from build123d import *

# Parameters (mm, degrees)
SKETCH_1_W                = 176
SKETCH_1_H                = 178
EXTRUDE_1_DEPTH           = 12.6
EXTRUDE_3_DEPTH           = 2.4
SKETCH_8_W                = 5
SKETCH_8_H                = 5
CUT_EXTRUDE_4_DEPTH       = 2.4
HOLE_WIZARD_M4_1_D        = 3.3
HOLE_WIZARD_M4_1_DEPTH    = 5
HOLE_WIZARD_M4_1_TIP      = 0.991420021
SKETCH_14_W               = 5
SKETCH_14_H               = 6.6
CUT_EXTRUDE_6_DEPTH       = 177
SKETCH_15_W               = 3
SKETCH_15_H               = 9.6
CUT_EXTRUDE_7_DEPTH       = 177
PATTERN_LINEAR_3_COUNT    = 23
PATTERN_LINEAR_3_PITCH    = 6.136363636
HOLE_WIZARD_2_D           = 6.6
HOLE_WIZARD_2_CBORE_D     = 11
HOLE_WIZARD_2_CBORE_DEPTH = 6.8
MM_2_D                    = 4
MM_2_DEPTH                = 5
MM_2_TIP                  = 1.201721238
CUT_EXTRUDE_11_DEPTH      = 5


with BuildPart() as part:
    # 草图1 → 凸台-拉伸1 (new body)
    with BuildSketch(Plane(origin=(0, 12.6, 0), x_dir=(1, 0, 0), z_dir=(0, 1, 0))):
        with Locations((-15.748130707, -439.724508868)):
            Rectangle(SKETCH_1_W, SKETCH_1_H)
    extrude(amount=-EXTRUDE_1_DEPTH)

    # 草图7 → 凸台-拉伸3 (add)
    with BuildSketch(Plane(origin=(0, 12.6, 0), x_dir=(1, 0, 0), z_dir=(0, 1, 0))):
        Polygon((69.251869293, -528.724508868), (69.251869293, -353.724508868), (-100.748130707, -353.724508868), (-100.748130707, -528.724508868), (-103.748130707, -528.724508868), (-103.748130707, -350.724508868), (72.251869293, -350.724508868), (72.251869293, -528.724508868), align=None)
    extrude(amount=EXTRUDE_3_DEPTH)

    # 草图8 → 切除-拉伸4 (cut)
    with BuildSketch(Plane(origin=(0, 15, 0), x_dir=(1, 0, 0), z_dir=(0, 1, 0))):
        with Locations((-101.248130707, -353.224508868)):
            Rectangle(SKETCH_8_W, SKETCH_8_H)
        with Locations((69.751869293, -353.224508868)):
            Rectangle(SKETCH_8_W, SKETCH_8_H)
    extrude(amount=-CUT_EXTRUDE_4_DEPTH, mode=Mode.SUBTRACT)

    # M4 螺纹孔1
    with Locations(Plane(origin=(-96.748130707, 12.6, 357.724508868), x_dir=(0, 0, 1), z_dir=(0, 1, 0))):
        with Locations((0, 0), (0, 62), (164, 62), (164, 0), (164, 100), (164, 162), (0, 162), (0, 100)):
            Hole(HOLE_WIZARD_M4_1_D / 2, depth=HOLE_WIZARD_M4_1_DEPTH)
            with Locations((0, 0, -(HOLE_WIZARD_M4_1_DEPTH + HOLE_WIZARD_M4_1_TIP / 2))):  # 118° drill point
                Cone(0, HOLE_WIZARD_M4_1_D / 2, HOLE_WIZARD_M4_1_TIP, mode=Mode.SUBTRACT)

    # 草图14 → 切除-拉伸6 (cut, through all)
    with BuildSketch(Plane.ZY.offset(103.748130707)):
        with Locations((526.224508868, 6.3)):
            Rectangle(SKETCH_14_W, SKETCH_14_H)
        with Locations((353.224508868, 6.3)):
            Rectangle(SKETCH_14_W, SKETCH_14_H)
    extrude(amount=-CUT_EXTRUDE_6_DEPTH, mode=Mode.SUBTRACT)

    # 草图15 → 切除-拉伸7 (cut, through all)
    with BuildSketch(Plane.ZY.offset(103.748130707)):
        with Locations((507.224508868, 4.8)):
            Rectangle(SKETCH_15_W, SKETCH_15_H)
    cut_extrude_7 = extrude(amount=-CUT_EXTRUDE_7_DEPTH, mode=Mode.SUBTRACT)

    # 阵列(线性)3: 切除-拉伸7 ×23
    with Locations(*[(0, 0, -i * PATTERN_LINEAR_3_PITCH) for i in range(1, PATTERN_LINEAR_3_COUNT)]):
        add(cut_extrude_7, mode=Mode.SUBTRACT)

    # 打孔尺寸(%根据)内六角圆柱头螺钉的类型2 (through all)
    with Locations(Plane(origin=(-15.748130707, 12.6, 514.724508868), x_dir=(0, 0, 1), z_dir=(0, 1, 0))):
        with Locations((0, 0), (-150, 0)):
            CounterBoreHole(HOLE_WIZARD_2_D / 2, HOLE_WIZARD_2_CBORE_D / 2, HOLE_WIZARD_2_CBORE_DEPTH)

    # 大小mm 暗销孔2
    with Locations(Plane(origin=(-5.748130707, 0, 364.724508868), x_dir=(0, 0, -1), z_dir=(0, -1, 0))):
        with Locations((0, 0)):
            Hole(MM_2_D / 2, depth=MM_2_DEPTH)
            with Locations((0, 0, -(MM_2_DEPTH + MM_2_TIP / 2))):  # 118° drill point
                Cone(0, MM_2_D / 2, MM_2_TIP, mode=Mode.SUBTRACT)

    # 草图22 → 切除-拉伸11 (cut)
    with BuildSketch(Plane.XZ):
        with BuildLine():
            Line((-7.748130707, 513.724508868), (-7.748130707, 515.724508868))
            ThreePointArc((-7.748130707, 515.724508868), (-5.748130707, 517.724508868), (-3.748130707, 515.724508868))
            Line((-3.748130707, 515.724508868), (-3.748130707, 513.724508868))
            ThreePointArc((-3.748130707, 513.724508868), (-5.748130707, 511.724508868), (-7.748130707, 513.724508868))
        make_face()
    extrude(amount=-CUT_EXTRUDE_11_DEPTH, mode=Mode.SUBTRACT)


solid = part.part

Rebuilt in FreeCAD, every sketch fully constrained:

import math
import FreeCAD as App
import Part
import Sketcher

V = App.Vector

doc = App.newDocument("Part")
body = doc.addObject("PartDesign::Body", "Body")

# Sketch on XZ plane
sketch1 = doc.addObject("Sketcher::SketchObject", "Sketch")
body.addObject(sketch1)
sketch1.AttachmentSupport = (doc.XZ_Plane, [""])
sketch1.MapMode = "FlatFace"
sketch1.AttachmentOffset = App.Placement(V(0, 0, -12.6), App.Rotation())
sketch1.addGeometry(Part.LineSegment(V(-103.748131, 350.724509, 0), V(-103.748131, 528.724509, 0)), False)
sketch1.addGeometry(Part.LineSegment(V(-103.748131, 528.724509, 0), V(72.251869, 528.724509, 0)), False)
sketch1.addGeometry(Part.LineSegment(V(72.251869, 528.724509, 0), V(72.251869, 350.724509, 0)), False)
sketch1.addGeometry(Part.LineSegment(V(72.251869, 350.724509, 0), V(-103.748131, 350.724509, 0)), False)
sketch1.addConstraint(Sketcher.Constraint("Coincident", 0, 2, 1, 1))
sketch1.addConstraint(Sketcher.Constraint("Coincident", 1, 2, 2, 1))
sketch1.addConstraint(Sketcher.Constraint("Coincident", 2, 2, 3, 1))
sketch1.addConstraint(Sketcher.Constraint("Coincident", 3, 2, 0, 1))
sketch1.addConstraint(Sketcher.Constraint("Vertical", 0))
sketch1.addConstraint(Sketcher.Constraint("Horizontal", 1))
sketch1.addConstraint(Sketcher.Constraint("Vertical", 2))
sketch1.addConstraint(Sketcher.Constraint("Horizontal", 3))
sketch1.addConstraint(Sketcher.Constraint("DistanceX", 1, 1, 1, 2, 176.0))
sketch1.addConstraint(Sketcher.Constraint("DistanceY", 0, 1, 0, 2, 178.0))
sketch1.addConstraint(Sketcher.Constraint("DistanceX", 0, 2, -1, 1, 103.748131))
sketch1.addConstraint(Sketcher.Constraint("DistanceY", -1, 1, 0, 2, 528.724509))
pad1 = doc.addObject("PartDesign::Pad", "Pad")
body.addObject(pad1)
pad1.Profile = sketch1
pad1.Length = 12.6

# Sketch on XZ plane
sketch2 = doc.addObject("Sketcher::SketchObject", "Sketch001")
body.addObject(sketch2)
sketch2.AttachmentSupport = (doc.XZ_Plane, [""])
sketch2.MapMode = "FlatFace"
sketch2.AttachmentOffset = App.Placement(V(0, 0, -12.6), App.Rotation())
sketch2.addGeometry(Part.LineSegment(V(69.251869, 353.724509, 0), V(69.251869, 528.724509, 0)), False)
sketch2.addGeometry(Part.LineSegment(V(69.251869, 528.724509, 0), V(72.251869, 528.724509, 0)), False)
sketch2.addGeometry(Part.LineSegment(V(72.251869, 528.724509, 0), V(72.251869, 350.724509, 0)), False)
sketch2.addGeometry(Part.LineSegment(V(72.251869, 350.724509, 0), V(-103.748131, 350.724509, 0)), False)
sketch2.addGeometry(Part.LineSegment(V(-103.748131, 350.724509, 0), V(-103.748131, 528.724509, 0)), False)
sketch2.addGeometry(Part.LineSegment(V(-103.748131, 528.724509, 0), V(-100.748131, 528.724509, 0)), False)
sketch2.addGeometry(Part.LineSegment(V(-100.748131, 528.724509, 0), V(-100.748131, 353.724509, 0)), False)
sketch2.addGeometry(Part.LineSegment(V(-100.748131, 353.724509, 0), V(69.251869, 353.724509, 0)), False)
sketch2.addConstraint(Sketcher.Constraint("Coincident", 0, 2, 1, 1))
sketch2.addConstraint(Sketcher.Constraint("Coincident", 1, 2, 2, 1))
sketch2.addConstraint(Sketcher.Constraint("Coincident", 2, 2, 3, 1))
sketch2.addConstraint(Sketcher.Constraint("Coincident", 3, 2, 4, 1))
sketch2.addConstraint(Sketcher.Constraint("Coincident", 4, 2, 5, 1))
sketch2.addConstraint(Sketcher.Constraint("Coincident", 5, 2, 6, 1))
sketch2.addConstraint(Sketcher.Constraint("Coincident", 6, 2, 7, 1))
sketch2.addConstraint(Sketcher.Constraint("Coincident", 7, 2, 0, 1))
sketch2.addConstraint(Sketcher.Constraint("Vertical", 0))
sketch2.addConstraint(Sketcher.Constraint("Horizontal", 1))
sketch2.addConstraint(Sketcher.Constraint("Vertical", 2))
sketch2.addConstraint(Sketcher.Constraint("Horizontal", 3))
sketch2.addConstraint(Sketcher.Constraint("Vertical", 4))
sketch2.addConstraint(Sketcher.Constraint("Horizontal", 5))
sketch2.addConstraint(Sketcher.Constraint("Vertical", 6))
sketch2.addConstraint(Sketcher.Constraint("Horizontal", 7))
sketch2.addConstraint(Sketcher.Constraint("Horizontal", 1, 2, 4, 2))
sketch2.addConstraint(Sketcher.Constraint("Equal", 1, 5))
sketch2.addConstraint(Sketcher.Constraint("DistanceX", 1, 1, 1, 2, 3.0))
sketch2.addConstraint(Sketcher.Constraint("DistanceX", 3, 2, 3, 1, 176.0))
sketch2.addConstraint(Sketcher.Constraint("DistanceY", 0, 1, 0, 2, 175.0))
sketch2.addConstraint(Sketcher.Constraint("DistanceY", 2, 2, 2, 1, 178.0))
sketch2.addConstraint(Sketcher.Constraint("DistanceX", -1, 1, 0, 2, 69.251869))
sketch2.addConstraint(Sketcher.Constraint("DistanceY", -1, 1, 0, 2, 528.724509))
pad2 = doc.addObject("PartDesign::Pad", "Pad001")
body.addObject(pad2)
pad2.Profile = sketch2
pad2.Length = 2.4
pad2.Reversed = True

# Sketch on XZ plane
sketch3 = doc.addObject("Sketcher::SketchObject", "Sketch002")
body.addObject(sketch3)
sketch3.AttachmentSupport = (doc.XZ_Plane, [""])
sketch3.MapMode = "FlatFace"
sketch3.AttachmentOffset = App.Placement(V(0, 0, -15), App.Rotation())
sketch3.addGeometry(Part.LineSegment(V(-103.748131, 350.724509, 0), V(-103.748131, 355.724509, 0)), False)
sketch3.addGeometry(Part.LineSegment(V(-103.748131, 355.724509, 0), V(-98.748131, 355.724509, 0)), False)
sketch3.addGeometry(Part.LineSegment(V(-98.748131, 355.724509, 0), V(-98.748131, 350.724509, 0)), False)
sketch3.addGeometry(Part.LineSegment(V(-98.748131, 350.724509, 0), V(-103.748131, 350.724509, 0)), False)
sketch3.addGeometry(Part.LineSegment(V(67.251869, 350.724509, 0), V(67.251869, 355.724509, 0)), False)
sketch3.addGeometry(Part.LineSegment(V(67.251869, 355.724509, 0), V(72.251869, 355.724509, 0)), False)
sketch3.addGeometry(Part.LineSegment(V(72.251869, 355.724509, 0), V(72.251869, 350.724509, 0)), False)
sketch3.addGeometry(Part.LineSegment(V(72.251869, 350.724509, 0), V(67.251869, 350.724509, 0)), False)
sketch3.addConstraint(Sketcher.Constraint("Coincident", 0, 2, 1, 1))
sketch3.addConstraint(Sketcher.Constraint("Coincident", 1, 2, 2, 1))
sketch3.addConstraint(Sketcher.Constraint("Coincident", 2, 2, 3, 1))
sketch3.addConstraint(Sketcher.Constraint("Coincident", 3, 2, 0, 1))
sketch3.addConstraint(Sketcher.Constraint("Coincident", 4, 2, 5, 1))
sketch3.addConstraint(Sketcher.Constraint("Coincident", 5, 2, 6, 1))
sketch3.addConstraint(Sketcher.Constraint("Coincident", 6, 2, 7, 1))
sketch3.addConstraint(Sketcher.Constraint("Coincident", 7, 2, 4, 1))
sketch3.addConstraint(Sketcher.Constraint("Vertical", 0))
sketch3.addConstraint(Sketcher.Constraint("Horizontal", 1))
sketch3.addConstraint(Sketcher.Constraint("Vertical", 2))
sketch3.addConstraint(Sketcher.Constraint("Horizontal", 3))
sketch3.addConstraint(Sketcher.Constraint("Vertical", 4))
sketch3.addConstraint(Sketcher.Constraint("Horizontal", 5))
sketch3.addConstraint(Sketcher.Constraint("Vertical", 6))
sketch3.addConstraint(Sketcher.Constraint("Horizontal", 7))
sketch3.addConstraint(Sketcher.Constraint("Horizontal", 1, 2, 4, 2))
sketch3.addConstraint(Sketcher.Constraint("Horizontal", 3, 2, 6, 2))
sketch3.addConstraint(Sketcher.Constraint("Equal", 3, 5))
sketch3.addConstraint(Sketcher.Constraint("Equal", 7, 0))
sketch3.addConstraint(Sketcher.Constraint("DistanceX", 1, 1, 1, 2, 5.0))
sketch3.addConstraint(Sketcher.Constraint("DistanceX", 1, 2, 4, 2, 166.0))
sketch3.addConstraint(Sketcher.Constraint("DistanceX", 0, 2, -1, 1, 103.748131))
sketch3.addConstraint(Sketcher.Constraint("DistanceY", -1, 1, 0, 2, 355.724509))
pocket1 = doc.addObject("PartDesign::Pocket", "Pocket")
body.addObject(pocket1)
pocket1.Profile = sketch3
pocket1.Length = 2.4
pocket1.Reversed = True

# Sketch on XZ plane
sketch4 = doc.addObject("Sketcher::SketchObject", "Sketch003")
body.addObject(sketch4)
sketch4.AttachmentSupport = (doc.XZ_Plane, [""])
sketch4.MapMode = "FlatFace"
sketch4.AttachmentOffset = App.Placement(V(0, 0, -12.6), App.Rotation())
sketch4.addGeometry(Part.Circle(V(-96.748131, 357.724509, 0), V(0, 0, 1), 1.65), False)
sketch4.addGeometry(Part.Circle(V(-34.748131, 357.724509, 0), V(0, 0, 1), 1.65), False)
sketch4.addGeometry(Part.Circle(V(-34.748131, 521.724509, 0), V(0, 0, 1), 1.65), False)
sketch4.addGeometry(Part.Circle(V(-96.748131, 521.724509, 0), V(0, 0, 1), 1.65), False)
sketch4.addGeometry(Part.Circle(V(3.251869, 521.724509, 0), V(0, 0, 1), 1.65), False)
sketch4.addGeometry(Part.Circle(V(65.251869, 521.724509, 0), V(0, 0, 1), 1.65), False)
sketch4.addGeometry(Part.Circle(V(65.251869, 357.724509, 0), V(0, 0, 1), 1.65), False)
sketch4.addGeometry(Part.Circle(V(3.251869, 357.724509, 0), V(0, 0, 1), 1.65), False)
sketch4.addConstraint(Sketcher.Constraint("Equal", 0, 1))
sketch4.addConstraint(Sketcher.Constraint("Equal", 1, 2))
sketch4.addConstraint(Sketcher.Constraint("Equal", 2, 3))
sketch4.addConstraint(Sketcher.Constraint("Equal", 3, 4))
sketch4.addConstraint(Sketcher.Constraint("Equal", 4, 5))
sketch4.addConstraint(Sketcher.Constraint("Equal", 5, 6))
sketch4.addConstraint(Sketcher.Constraint("Equal", 6, 7))
sketch4.addConstraint(Sketcher.Constraint("Horizontal", 0, 3, 1, 3))
sketch4.addConstraint(Sketcher.Constraint("Horizontal", 2, 3, 3, 3))
sketch4.addConstraint(Sketcher.Constraint("Horizontal", 3, 3, 4, 3))
sketch4.addConstraint(Sketcher.Constraint("Horizontal", 4, 3, 5, 3))
sketch4.addConstraint(Sketcher.Constraint("Horizontal", 1, 3, 6, 3))
sketch4.addConstraint(Sketcher.Constraint("Horizontal", 6, 3, 7, 3))
sketch4.addConstraint(Sketcher.Constraint("Vertical", 1, 3, 2, 3))
sketch4.addConstraint(Sketcher.Constraint("Vertical", 0, 3, 3, 3))
sketch4.addConstraint(Sketcher.Constraint("Vertical", 5, 3, 6, 3))
sketch4.addConstraint(Sketcher.Constraint("Vertical", 4, 3, 7, 3))
sketch4.addConstraint(Sketcher.Constraint("Diameter", 0, 3.3))
sketch4.addConstraint(Sketcher.Constraint("DistanceX", 0, 3, 1, 3, 62.0))
sketch4.addConstraint(Sketcher.Constraint("DistanceY", 1, 3, 2, 3, 164.0))
sketch4.addConstraint(Sketcher.Constraint("DistanceX", 2, 3, 4, 3, 38.0))
sketch4.addConstraint(Sketcher.Constraint("DistanceX", 4, 3, 5, 3, 62.0))
sketch4.addConstraint(Sketcher.Constraint("DistanceX", 0, 3, -1, 1, 96.748131))
sketch4.addConstraint(Sketcher.Constraint("DistanceY", -1, 1, 0, 3, 357.724509))
doc.recompute()
hole = doc.addObject("PartDesign::Hole", "Hole")
body.addObject(hole)
hole.Profile = sketch4
hole.ThreadType = "None"
hole.Diameter = 3.3
hole.DepthType = "Dimension"
hole.Depth = 5
hole.DrillPoint = "Angled"
hole.DrillPointAngle = 118
hole.Reversed = True

# Sketch on YZ plane
sketch5 = doc.addObject("Sketcher::SketchObject", "Sketch004")
body.addObject(sketch5)
sketch5.AttachmentSupport = (doc.YZ_Plane, [""])
sketch5.MapMode = "FlatFace"
sketch5.AttachmentOffset = App.Placement(V(0, 0, -103.748131), App.Rotation())
sketch5.addGeometry(Part.LineSegment(V(9.6, 523.724509, 0), V(3, 523.724509, 0)), False)
sketch5.addGeometry(Part.LineSegment(V(3, 523.724509, 0), V(3, 528.724509, 0)), False)
sketch5.addGeometry(Part.LineSegment(V(3, 528.724509, 0), V(9.6, 528.724509, 0)), False)
sketch5.addGeometry(Part.LineSegment(V(9.6, 528.724509, 0), V(9.6, 523.724509, 0)), False)
sketch5.addGeometry(Part.LineSegment(V(9.6, 350.724509, 0), V(3, 350.724509, 0)), False)
sketch5.addGeometry(Part.LineSegment(V(3, 350.724509, 0), V(3, 355.724509, 0)), False)
sketch5.addGeometry(Part.LineSegment(V(3, 355.724509, 0), V(9.6, 355.724509, 0)), False)
sketch5.addGeometry(Part.LineSegment(V(9.6, 355.724509, 0), V(9.6, 350.724509, 0)), False)
sketch5.addConstraint(Sketcher.Constraint("Coincident", 0, 2, 1, 1))
sketch5.addConstraint(Sketcher.Constraint("Coincident", 1, 2, 2, 1))
sketch5.addConstraint(Sketcher.Constraint("Coincident", 2, 2, 3, 1))
sketch5.addConstraint(Sketcher.Constraint("Coincident", 3, 2, 0, 1))
sketch5.addConstraint(Sketcher.Constraint("Coincident", 4, 2, 5, 1))
sketch5.addConstraint(Sketcher.Constraint("Coincident", 5, 2, 6, 1))
sketch5.addConstraint(Sketcher.Constraint("Coincident", 6, 2, 7, 1))
sketch5.addConstraint(Sketcher.Constraint("Coincident", 7, 2, 4, 1))
sketch5.addConstraint(Sketcher.Constraint("Horizontal", 0))
sketch5.addConstraint(Sketcher.Constraint("Vertical", 1))
sketch5.addConstraint(Sketcher.Constraint("Horizontal", 2))
sketch5.addConstraint(Sketcher.Constraint("Vertical", 3))
sketch5.addConstraint(Sketcher.Constraint("Horizontal", 4))
sketch5.addConstraint(Sketcher.Constraint("Vertical", 5))
sketch5.addConstraint(Sketcher.Constraint("Horizontal", 6))
sketch5.addConstraint(Sketcher.Constraint("Vertical", 7))
sketch5.addConstraint(Sketcher.Constraint("Vertical", 1, 2, 4, 2))
sketch5.addConstraint(Sketcher.Constraint("Vertical", 3, 2, 6, 2))
sketch5.addConstraint(Sketcher.Constraint("Equal", 3, 5))
sketch5.addConstraint(Sketcher.Constraint("DistanceY", 1, 1, 1, 2, 5.0))
sketch5.addConstraint(Sketcher.Constraint("DistanceX", 0, 2, 0, 1, 6.6))
sketch5.addConstraint(Sketcher.Constraint("DistanceX", -1, 1, 0, 2, 3.0))
sketch5.addConstraint(Sketcher.Constraint("DistanceY", 4, 2, 0, 2, 173.0))
sketch5.addConstraint(Sketcher.Constraint("DistanceY", -1, 1, 0, 2, 523.724509))
pocket2 = doc.addObject("PartDesign::Pocket", "Pocket001")
body.addObject(pocket2)
pocket2.Profile = sketch5
pocket2.Type = "ThroughAll"
pocket2.Reversed = True

# Sketch on YZ plane
sketch6 = doc.addObject("Sketcher::SketchObject", "Sketch005")
body.addObject(sketch6)
sketch6.AttachmentSupport = (doc.YZ_Plane, [""])
sketch6.MapMode = "FlatFace"
sketch6.AttachmentOffset = App.Placement(V(0, 0, -103.748131), App.Rotation())
sketch6.addGeometry(Part.LineSegment(V(9.6, 505.724509, 0), V(0, 505.724509, 0)), False)
sketch6.addGeometry(Part.LineSegment(V(0, 505.724509, 0), V(0, 508.724509, 0)), False)
sketch6.addGeometry(Part.LineSegment(V(0, 508.724509, 0), V(9.6, 508.724509, 0)), False)
sketch6.addGeometry(Part.LineSegment(V(9.6, 508.724509, 0), V(9.6, 505.724509, 0)), False)
sketch6.addConstraint(Sketcher.Constraint("Coincident", 0, 2, 1, 1))
sketch6.addConstraint(Sketcher.Constraint("Coincident", 1, 2, 2, 1))
sketch6.addConstraint(Sketcher.Constraint("Coincident", 2, 2, 3, 1))
sketch6.addConstraint(Sketcher.Constraint("Coincident", 3, 2, 0, 1))
sketch6.addConstraint(Sketcher.Constraint("Horizontal", 0))
sketch6.addConstraint(Sketcher.Constraint("Vertical", 1))
sketch6.addConstraint(Sketcher.Constraint("Horizontal", 2))
sketch6.addConstraint(Sketcher.Constraint("Vertical", 3))
sketch6.addConstraint(Sketcher.Constraint("PointOnObject", 0, 2, -2))
sketch6.addConstraint(Sketcher.Constraint("DistanceY", 1, 1, 1, 2, 3.0))
sketch6.addConstraint(Sketcher.Constraint("DistanceX", 0, 2, 0, 1, 9.6))
sketch6.addConstraint(Sketcher.Constraint("DistanceY", -1, 1, 0, 2, 505.724509))
pocket3 = doc.addObject("PartDesign::Pocket", "Pocket002")
body.addObject(pocket3)
pocket3.Profile = sketch6
pocket3.Type = "ThroughAll"
pocket3.Reversed = True
doc.recompute()

linearpattern = doc.addObject("PartDesign::LinearPattern", "LinearPattern")
body.addObject(linearpattern)
linearpattern.Originals = [pocket3]
linearpattern.Direction = (doc.Z_Axis, [""])
linearpattern.Mode = "offset"
linearpattern.Offset = 6.136364
linearpattern.Occurrences = 23
linearpattern.Reversed = True
body.Tip = linearpattern

# Sketch on XZ plane
sketch7 = doc.addObject("Sketcher::SketchObject", "Sketch006")
body.addObject(sketch7)
sketch7.AttachmentSupport = (doc.XZ_Plane, [""])
sketch7.MapMode = "FlatFace"
sketch7.AttachmentOffset = App.Placement(V(0, 0, -12.6), App.Rotation())
sketch7.addGeometry(Part.Circle(V(-15.748131, 514.724509, 0), V(0, 0, 1), 3.3), False)
sketch7.addGeometry(Part.Circle(V(-15.748131, 364.724509, 0), V(0, 0, 1), 3.3), False)
sketch7.addConstraint(Sketcher.Constraint("Equal", 0, 1))
sketch7.addConstraint(Sketcher.Constraint("Vertical", 0, 3, 1, 3))
sketch7.addConstraint(Sketcher.Constraint("Diameter", 0, 6.6))
sketch7.addConstraint(Sketcher.Constraint("DistanceY", 1, 3, 0, 3, 150.0))
sketch7.addConstraint(Sketcher.Constraint("DistanceX", 0, 3, -1, 1, 15.748131))
sketch7.addConstraint(Sketcher.Constraint("DistanceY", -1, 1, 0, 3, 514.724509))
doc.recompute()
hole2 = doc.addObject("PartDesign::Hole", "Hole001")
body.addObject(hole2)
hole2.Profile = sketch7
hole2.ThreadType = "None"
hole2.Diameter = 6.6
hole2.DepthType = "ThroughAll"
hole2.HoleCutType = "Counterbore"
hole2.HoleCutDiameter = 11
hole2.HoleCutDepth = 6.8
hole2.Reversed = True

# Sketch on XZ plane
sketch8 = doc.addObject("Sketcher::SketchObject", "Sketch007")
body.addObject(sketch8)
sketch8.AttachmentSupport = (doc.XZ_Plane, [""])
sketch8.MapMode = "FlatFace"
sketch8.addGeometry(Part.Circle(V(-5.748131, 364.724509, 0), V(0, 0, 1), 2), False)
sketch8.addConstraint(Sketcher.Constraint("Diameter", 0, 4.0))
sketch8.addConstraint(Sketcher.Constraint("DistanceX", 0, 3, -1, 1, 5.748131))
sketch8.addConstraint(Sketcher.Constraint("DistanceY", -1, 1, 0, 3, 364.724509))
doc.recompute()
hole3 = doc.addObject("PartDesign::Hole", "Hole002")
body.addObject(hole3)
hole3.Profile = sketch8
hole3.ThreadType = "None"
hole3.Diameter = 4
hole3.DepthType = "Dimension"
hole3.Depth = 5
hole3.DrillPoint = "Angled"
hole3.DrillPointAngle = 118

# Sketch on XZ plane
sketch9 = doc.addObject("Sketcher::SketchObject", "Sketch008")
body.addObject(sketch9)
sketch9.AttachmentSupport = (doc.XZ_Plane, [""])
sketch9.MapMode = "FlatFace"
sketch9.addGeometry(Part.LineSegment(V(-7.748131, 515.724509, 0), V(-7.748131, 513.724509, 0)), False)
sketch9.addGeometry(Part.ArcOfCircle(Part.Circle(V(-5.748131, 513.724509, 0), V(0, 0, 1), 2), math.radians(180), math.radians(360)), False)
sketch9.addGeometry(Part.LineSegment(V(-3.748131, 513.724509, 0), V(-3.748131, 515.724509, 0)), False)
sketch9.addGeometry(Part.ArcOfCircle(Part.Circle(V(-5.748131, 515.724509, 0), V(0, 0, 1), 2), math.radians(0), math.radians(180)), False)
sketch9.addConstraint(Sketcher.Constraint("Tangent", 0, 2, 1, 1))
sketch9.addConstraint(Sketcher.Constraint("Tangent", 1, 2, 2, 1))
sketch9.addConstraint(Sketcher.Constraint("Tangent", 2, 2, 3, 1))
sketch9.addConstraint(Sketcher.Constraint("Tangent", 3, 2, 0, 1))
sketch9.addConstraint(Sketcher.Constraint("Vertical", 0))
sketch9.addConstraint(Sketcher.Constraint("Vertical", 2))
sketch9.addConstraint(Sketcher.Constraint("Radius", 1, 2.0))
sketch9.addConstraint(Sketcher.Constraint("DistanceY", 0, 2, 0, 1, 2.0))
sketch9.addConstraint(Sketcher.Constraint("DistanceX", 1, 3, -1, 1, 5.748131))
sketch9.addConstraint(Sketcher.Constraint("DistanceY", -1, 1, 1, 3, 513.724509))
pocket4 = doc.addObject("PartDesign::Pocket", "Pocket003")
body.addObject(pocket4)
pocket4.Profile = sketch9
pocket4.Length = 5

doc.recompute()
